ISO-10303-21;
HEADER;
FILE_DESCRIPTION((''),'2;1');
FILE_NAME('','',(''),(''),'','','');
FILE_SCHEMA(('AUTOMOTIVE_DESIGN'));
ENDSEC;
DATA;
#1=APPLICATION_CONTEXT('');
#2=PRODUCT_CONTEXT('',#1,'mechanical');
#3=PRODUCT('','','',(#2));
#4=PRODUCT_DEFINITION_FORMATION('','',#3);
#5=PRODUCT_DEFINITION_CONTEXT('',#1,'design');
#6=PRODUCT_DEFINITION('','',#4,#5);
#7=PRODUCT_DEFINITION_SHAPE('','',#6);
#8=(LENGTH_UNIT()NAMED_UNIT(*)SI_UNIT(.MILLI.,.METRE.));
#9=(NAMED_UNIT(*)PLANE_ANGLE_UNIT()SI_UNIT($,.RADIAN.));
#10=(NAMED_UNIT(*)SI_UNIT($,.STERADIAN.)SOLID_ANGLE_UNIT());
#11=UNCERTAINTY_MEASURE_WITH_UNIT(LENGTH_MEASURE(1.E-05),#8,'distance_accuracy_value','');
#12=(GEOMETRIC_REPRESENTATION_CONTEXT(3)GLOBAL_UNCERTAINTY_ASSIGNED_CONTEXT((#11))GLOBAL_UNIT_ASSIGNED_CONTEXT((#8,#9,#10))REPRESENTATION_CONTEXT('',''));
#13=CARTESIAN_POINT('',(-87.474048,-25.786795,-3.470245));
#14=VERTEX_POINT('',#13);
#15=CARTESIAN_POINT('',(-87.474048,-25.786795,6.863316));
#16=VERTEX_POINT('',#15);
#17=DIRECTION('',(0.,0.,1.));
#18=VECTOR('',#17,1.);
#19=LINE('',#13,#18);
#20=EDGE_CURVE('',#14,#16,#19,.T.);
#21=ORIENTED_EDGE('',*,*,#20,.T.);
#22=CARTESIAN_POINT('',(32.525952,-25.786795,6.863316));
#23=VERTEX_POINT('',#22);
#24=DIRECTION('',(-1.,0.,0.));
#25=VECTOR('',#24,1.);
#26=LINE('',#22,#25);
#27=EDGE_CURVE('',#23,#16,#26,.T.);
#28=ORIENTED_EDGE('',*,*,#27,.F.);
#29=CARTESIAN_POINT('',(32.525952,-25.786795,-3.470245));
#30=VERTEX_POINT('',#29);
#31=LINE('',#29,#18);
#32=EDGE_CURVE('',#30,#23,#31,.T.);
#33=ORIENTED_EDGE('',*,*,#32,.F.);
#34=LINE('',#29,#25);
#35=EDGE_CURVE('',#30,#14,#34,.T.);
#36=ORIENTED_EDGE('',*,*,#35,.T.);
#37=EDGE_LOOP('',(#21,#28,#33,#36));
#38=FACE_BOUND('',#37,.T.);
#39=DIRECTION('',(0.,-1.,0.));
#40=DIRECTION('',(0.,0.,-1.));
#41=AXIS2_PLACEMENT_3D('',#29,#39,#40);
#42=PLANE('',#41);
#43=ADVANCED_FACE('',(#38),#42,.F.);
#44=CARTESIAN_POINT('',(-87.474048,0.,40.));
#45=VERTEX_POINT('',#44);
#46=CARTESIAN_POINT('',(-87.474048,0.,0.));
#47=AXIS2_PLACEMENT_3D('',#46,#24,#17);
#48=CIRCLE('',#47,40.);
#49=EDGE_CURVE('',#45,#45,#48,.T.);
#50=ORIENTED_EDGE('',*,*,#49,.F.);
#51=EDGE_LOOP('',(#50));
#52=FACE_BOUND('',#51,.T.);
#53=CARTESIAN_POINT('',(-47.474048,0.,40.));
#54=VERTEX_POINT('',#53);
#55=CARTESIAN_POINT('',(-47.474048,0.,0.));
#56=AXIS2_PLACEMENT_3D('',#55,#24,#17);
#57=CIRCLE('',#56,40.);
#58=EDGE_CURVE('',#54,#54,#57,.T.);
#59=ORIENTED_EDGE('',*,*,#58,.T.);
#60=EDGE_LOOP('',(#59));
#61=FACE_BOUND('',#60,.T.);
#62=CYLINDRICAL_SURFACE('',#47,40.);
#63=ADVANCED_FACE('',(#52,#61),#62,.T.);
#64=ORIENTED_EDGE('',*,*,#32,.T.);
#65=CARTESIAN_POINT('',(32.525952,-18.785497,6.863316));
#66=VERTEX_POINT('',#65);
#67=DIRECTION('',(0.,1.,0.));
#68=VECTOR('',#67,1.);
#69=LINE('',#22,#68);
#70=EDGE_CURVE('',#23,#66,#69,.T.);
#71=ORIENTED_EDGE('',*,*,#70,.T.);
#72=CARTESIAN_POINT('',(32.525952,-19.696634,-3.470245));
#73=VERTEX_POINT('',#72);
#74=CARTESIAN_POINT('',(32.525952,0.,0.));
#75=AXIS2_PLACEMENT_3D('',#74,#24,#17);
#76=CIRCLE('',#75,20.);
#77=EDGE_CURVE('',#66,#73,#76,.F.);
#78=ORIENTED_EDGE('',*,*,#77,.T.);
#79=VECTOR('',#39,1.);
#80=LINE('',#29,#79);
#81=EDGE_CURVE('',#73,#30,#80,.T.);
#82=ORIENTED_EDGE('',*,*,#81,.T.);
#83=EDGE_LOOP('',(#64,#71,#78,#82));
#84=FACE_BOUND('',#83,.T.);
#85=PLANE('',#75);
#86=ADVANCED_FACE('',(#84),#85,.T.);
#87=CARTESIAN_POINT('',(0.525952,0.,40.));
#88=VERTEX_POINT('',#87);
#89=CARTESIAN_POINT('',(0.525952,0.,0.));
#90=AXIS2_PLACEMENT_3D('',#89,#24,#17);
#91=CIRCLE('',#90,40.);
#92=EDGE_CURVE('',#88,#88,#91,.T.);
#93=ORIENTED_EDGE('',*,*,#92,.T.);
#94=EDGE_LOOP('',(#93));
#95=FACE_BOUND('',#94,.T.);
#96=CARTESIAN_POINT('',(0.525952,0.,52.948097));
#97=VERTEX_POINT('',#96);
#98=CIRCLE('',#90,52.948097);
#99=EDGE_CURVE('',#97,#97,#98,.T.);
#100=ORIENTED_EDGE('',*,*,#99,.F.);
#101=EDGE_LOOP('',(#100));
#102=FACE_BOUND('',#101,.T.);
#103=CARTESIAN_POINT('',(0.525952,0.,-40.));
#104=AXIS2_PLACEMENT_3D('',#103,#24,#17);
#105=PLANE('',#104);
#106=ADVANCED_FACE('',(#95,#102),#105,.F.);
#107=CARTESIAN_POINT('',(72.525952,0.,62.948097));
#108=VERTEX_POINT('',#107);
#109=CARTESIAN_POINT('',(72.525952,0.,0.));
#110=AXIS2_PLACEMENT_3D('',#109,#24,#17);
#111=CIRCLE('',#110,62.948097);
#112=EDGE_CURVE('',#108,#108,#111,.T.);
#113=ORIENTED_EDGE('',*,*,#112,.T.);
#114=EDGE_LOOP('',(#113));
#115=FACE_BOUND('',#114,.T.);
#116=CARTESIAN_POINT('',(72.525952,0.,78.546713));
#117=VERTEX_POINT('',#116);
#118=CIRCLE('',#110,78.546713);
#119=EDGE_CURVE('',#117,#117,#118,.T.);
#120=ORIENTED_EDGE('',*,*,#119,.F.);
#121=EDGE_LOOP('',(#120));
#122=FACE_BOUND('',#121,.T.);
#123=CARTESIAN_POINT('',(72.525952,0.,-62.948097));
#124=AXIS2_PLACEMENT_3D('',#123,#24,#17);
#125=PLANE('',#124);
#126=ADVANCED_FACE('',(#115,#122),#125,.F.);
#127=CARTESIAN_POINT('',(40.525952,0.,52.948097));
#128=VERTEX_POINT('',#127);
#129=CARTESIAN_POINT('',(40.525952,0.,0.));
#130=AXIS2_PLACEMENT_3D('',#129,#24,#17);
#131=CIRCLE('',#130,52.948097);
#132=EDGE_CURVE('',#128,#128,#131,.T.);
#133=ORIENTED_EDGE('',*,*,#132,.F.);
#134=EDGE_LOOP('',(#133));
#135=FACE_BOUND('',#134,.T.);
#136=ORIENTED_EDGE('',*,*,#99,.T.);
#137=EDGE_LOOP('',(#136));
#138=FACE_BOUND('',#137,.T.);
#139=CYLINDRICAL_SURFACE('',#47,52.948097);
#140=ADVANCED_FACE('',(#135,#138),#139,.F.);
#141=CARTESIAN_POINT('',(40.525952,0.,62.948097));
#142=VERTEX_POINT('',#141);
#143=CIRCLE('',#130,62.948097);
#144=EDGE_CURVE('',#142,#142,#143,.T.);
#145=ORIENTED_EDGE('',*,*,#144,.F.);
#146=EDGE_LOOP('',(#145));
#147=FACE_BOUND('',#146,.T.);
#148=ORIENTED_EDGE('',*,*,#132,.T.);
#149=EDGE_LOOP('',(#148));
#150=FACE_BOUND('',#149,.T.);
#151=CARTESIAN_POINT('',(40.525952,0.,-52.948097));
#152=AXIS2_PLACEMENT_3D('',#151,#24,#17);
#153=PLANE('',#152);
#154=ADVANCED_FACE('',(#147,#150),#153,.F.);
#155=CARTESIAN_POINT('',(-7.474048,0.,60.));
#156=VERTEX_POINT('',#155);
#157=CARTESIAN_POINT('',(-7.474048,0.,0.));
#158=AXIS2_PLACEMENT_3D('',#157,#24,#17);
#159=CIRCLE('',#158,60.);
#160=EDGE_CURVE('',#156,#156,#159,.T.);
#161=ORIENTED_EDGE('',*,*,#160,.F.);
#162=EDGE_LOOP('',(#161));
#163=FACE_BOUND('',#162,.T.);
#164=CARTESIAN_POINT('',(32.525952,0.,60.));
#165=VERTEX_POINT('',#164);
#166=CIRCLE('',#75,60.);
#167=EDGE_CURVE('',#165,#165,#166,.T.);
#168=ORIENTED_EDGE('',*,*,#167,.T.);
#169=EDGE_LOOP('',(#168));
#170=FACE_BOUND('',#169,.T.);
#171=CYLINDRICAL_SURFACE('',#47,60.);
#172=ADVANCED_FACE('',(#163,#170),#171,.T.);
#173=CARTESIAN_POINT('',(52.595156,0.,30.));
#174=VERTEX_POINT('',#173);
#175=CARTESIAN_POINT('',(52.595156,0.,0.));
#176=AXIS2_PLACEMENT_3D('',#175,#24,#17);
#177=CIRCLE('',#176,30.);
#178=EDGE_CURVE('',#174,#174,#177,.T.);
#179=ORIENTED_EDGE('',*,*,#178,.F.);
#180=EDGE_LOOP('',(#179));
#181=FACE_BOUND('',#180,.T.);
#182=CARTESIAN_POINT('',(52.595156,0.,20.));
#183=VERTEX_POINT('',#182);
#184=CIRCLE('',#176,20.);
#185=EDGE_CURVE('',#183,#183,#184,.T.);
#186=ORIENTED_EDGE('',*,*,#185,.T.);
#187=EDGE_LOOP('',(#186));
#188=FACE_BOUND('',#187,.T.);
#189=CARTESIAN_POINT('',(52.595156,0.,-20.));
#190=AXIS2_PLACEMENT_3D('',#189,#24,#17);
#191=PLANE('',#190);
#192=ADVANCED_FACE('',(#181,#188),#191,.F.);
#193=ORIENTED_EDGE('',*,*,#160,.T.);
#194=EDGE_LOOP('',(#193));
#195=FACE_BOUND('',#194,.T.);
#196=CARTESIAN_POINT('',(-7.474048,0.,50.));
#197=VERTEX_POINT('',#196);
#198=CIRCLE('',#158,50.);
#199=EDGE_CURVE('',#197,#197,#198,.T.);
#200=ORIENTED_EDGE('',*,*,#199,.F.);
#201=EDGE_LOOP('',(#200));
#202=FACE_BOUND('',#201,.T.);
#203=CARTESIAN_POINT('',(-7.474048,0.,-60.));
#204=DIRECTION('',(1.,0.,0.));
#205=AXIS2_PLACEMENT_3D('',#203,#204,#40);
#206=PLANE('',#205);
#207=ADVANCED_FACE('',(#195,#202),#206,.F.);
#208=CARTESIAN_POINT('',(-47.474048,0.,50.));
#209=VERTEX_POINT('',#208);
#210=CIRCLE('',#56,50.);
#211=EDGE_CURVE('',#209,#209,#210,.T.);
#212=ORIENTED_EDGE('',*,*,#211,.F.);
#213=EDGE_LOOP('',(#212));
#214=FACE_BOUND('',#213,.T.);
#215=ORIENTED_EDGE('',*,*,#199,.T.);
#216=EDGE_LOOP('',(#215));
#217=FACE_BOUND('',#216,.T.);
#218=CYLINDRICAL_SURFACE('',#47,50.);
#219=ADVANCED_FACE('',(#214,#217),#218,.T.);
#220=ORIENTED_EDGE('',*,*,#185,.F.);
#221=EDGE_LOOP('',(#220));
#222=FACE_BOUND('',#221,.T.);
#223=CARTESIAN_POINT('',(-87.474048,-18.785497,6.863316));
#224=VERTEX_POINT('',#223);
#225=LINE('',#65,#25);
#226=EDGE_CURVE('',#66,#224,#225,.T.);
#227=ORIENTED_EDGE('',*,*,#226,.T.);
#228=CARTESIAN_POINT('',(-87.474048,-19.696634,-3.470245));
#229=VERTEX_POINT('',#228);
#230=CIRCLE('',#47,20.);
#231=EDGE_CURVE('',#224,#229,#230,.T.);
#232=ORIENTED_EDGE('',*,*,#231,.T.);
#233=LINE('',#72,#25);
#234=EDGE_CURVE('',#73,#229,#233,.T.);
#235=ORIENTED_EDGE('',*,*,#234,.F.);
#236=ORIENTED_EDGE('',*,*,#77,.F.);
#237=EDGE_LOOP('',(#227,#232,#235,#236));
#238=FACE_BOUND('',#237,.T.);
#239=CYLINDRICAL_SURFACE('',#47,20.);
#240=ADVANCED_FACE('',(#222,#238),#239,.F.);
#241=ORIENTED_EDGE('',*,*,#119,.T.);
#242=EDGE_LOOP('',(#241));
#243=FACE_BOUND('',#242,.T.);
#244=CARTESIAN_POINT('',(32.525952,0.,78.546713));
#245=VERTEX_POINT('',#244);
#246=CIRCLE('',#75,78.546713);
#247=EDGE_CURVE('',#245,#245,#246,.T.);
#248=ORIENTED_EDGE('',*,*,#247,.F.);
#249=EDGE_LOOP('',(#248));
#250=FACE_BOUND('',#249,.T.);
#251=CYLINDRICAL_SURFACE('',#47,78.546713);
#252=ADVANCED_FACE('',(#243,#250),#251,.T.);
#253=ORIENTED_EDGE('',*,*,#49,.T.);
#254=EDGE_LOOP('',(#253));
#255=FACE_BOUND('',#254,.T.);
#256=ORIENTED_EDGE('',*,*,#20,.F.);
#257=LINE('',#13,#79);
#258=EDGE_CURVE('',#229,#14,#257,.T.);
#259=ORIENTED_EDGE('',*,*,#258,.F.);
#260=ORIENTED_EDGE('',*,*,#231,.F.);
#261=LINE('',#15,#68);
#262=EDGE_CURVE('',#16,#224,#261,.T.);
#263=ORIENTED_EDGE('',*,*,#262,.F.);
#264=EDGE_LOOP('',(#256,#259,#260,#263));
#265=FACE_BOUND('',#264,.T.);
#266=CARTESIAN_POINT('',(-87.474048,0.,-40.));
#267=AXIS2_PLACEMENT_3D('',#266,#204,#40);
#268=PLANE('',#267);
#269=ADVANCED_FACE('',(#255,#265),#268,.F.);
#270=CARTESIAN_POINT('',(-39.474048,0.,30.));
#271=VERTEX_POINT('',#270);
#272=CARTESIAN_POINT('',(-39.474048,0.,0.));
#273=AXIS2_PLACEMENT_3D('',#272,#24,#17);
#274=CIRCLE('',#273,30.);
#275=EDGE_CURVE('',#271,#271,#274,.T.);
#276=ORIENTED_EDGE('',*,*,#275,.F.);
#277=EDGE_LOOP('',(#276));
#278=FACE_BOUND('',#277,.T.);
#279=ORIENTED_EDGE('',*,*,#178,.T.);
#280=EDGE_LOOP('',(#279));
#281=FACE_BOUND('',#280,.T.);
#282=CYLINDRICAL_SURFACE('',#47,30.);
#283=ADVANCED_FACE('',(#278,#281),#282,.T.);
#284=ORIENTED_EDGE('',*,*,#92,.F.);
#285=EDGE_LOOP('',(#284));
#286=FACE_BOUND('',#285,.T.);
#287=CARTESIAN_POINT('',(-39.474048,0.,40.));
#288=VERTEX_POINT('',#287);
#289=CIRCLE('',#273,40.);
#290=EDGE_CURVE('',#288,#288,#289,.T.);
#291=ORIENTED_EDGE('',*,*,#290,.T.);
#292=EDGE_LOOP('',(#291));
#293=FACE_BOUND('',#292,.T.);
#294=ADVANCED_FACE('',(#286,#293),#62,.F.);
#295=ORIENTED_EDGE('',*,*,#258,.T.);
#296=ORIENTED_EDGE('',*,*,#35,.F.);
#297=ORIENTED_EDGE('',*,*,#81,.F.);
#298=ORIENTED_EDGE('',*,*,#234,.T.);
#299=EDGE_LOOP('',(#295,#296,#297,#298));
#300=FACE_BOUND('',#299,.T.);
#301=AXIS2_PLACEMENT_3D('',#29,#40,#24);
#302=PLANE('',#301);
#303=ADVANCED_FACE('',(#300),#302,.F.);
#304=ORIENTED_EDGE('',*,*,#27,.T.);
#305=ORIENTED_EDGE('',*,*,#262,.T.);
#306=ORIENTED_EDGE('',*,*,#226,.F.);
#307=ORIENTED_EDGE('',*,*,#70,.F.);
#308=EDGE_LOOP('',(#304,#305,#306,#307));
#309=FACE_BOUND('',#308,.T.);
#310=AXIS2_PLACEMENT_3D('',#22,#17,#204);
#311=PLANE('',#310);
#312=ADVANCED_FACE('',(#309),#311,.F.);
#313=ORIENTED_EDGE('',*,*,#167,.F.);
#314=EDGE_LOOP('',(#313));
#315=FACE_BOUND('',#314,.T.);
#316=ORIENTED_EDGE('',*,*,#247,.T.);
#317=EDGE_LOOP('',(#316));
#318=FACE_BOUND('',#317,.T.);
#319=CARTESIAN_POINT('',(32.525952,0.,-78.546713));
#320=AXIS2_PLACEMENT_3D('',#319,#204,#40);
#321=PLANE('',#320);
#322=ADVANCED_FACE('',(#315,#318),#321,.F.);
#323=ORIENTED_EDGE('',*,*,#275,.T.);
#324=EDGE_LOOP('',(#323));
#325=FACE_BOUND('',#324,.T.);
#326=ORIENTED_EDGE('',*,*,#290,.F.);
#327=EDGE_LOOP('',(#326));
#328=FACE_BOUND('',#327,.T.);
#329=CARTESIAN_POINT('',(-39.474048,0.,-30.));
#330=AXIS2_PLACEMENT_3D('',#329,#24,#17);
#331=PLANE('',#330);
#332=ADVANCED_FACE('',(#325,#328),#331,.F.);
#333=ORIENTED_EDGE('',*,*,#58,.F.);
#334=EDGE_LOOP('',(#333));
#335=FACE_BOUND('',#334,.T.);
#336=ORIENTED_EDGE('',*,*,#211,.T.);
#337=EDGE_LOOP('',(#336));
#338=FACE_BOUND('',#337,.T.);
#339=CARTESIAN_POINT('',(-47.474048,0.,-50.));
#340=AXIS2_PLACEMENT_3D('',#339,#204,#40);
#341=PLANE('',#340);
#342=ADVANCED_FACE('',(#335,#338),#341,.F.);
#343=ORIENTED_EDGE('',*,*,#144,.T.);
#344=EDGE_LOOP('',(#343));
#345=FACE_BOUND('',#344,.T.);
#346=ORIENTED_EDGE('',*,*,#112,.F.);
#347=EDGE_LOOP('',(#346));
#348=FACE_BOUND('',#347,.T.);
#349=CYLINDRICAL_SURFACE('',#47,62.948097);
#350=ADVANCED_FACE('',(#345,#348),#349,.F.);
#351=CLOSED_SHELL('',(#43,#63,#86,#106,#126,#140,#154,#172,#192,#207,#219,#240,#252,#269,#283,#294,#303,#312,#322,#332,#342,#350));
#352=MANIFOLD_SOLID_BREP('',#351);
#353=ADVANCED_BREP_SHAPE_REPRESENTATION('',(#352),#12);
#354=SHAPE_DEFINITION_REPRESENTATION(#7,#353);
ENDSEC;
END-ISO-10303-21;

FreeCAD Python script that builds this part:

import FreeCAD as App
import Part
import Sketcher
from FreeCAD import Vector
Q = App.Units.Quantity

doc = App.newDocument("Part")
params = doc.addObject("Spreadsheet::Sheet", "Params")
for row, (alias, value) in enumerate([
    ("sketch1_width", "40 mm"),
    ("sketch1_width2", "32 mm"),
    ("sketch1_height", "10 mm"),
    ("revolution_angle", "360 deg"),
    ("pocket1_length", "120 mm"),
], start=1):
    params.set(f"A{row}", alias)
    params.set(f"B{row}", "=" + value)
    params.setAlias(f"B{row}", alias)

body = doc.addObject("PartDesign::Body", "Body")

sketch1 = body.newObject("Sketcher::SketchObject", "Sketch")
sketch1.AttachmentSupport = (doc.getObject("XZ_Plane"), [""])
sketch1.MapMode = "FlatFace"
sketch1.addGeometry(Part.LineSegment(Vector(-87, -20, 0), Vector(53, -20, 0)), False)
sketch1.addGeometry(Part.LineSegment(Vector(53, -20, 0), Vector(53, -30, 0)), False)
sketch1.addGeometry(Part.LineSegment(Vector(53, -30, 0), Vector(-39, -30, 0)), False)
sketch1.addGeometry(Part.LineSegment(Vector(-39, -30, 0), Vector(-39, -40, 0)), False)
sketch1.addGeometry(Part.LineSegment(Vector(-39, -40, 0), Vector(1, -40, 0)), False)
sketch1.addGeometry(Part.LineSegment(Vector(1, -40, 0), Vector(1, -53, 0)), False)
sketch1.addGeometry(Part.LineSegment(Vector(1, -53, 0), Vector(41, -53, 0)), False)
sketch1.addGeometry(Part.LineSegment(Vector(41, -53, 0), Vector(41, -63, 0)), False)
sketch1.addGeometry(Part.LineSegment(Vector(41, -63, 0), Vector(73, -63, 0)), False)
sketch1.addGeometry(Part.LineSegment(Vector(73, -63, 0), Vector(73, -79, 0)), False)
sketch1.addGeometry(Part.LineSegment(Vector(73, -79, 0), Vector(33, -79, 0)), False)
sketch1.addGeometry(Part.LineSegment(Vector(33, -79, 0), Vector(33, -60, 0)), False)
sketch1.addGeometry(Part.LineSegment(Vector(33, -60, 0), Vector(-7, -60, 0)), False)
sketch1.addGeometry(Part.LineSegment(Vector(-7, -60, 0), Vector(-7, -50, 0)), False)
sketch1.addGeometry(Part.LineSegment(Vector(-7, -50, 0), Vector(-47, -50, 0)), False)
sketch1.addGeometry(Part.LineSegment(Vector(-47, -50, 0), Vector(-47, -40, 0)), False)
sketch1.addGeometry(Part.LineSegment(Vector(-47, -40, 0), Vector(-87, -40, 0)), False)
sketch1.addGeometry(Part.LineSegment(Vector(-87, -40, 0), Vector(-87, -20, 0)), False)
sketch1.addConstraint(Sketcher.Constraint("Coincident", 0, 2, 1, 1))
sketch1.addConstraint(Sketcher.Constraint("Coincident", 1, 2, 2, 1))
sketch1.addConstraint(Sketcher.Constraint("Coincident", 2, 2, 3, 1))
sketch1.addConstraint(Sketcher.Constraint("Coincident", 3, 2, 4, 1))
sketch1.addConstraint(Sketcher.Constraint("Coincident", 4, 2, 5, 1))
sketch1.addConstraint(Sketcher.Constraint("Coincident", 5, 2, 6, 1))
sketch1.addConstraint(Sketcher.Constraint("Coincident", 6, 2, 7, 1))
sketch1.addConstraint(Sketcher.Constraint("Coincident", 7, 2, 8, 1))
sketch1.addConstraint(Sketcher.Constraint("Coincident", 8, 2, 9, 1))
sketch1.addConstraint(Sketcher.Constraint("Coincident", 9, 2, 10, 1))
sketch1.addConstraint(Sketcher.Constraint("Coincident", 10, 2, 11, 1))
sketch1.addConstraint(Sketcher.Constraint("Coincident", 11, 2, 12, 1))
sketch1.addConstraint(Sketcher.Constraint("Coincident", 12, 2, 13, 1))
sketch1.addConstraint(Sketcher.Constraint("Coincident", 13, 2, 14, 1))
sketch1.addConstraint(Sketcher.Constraint("Coincident", 14, 2, 15, 1))
sketch1.addConstraint(Sketcher.Constraint("Coincident", 15, 2, 16, 1))
sketch1.addConstraint(Sketcher.Constraint("Coincident", 16, 2, 17, 1))
sketch1.addConstraint(Sketcher.Constraint("Coincident", 17, 2, 0, 1))
sketch1.addConstraint(Sketcher.Constraint("Horizontal", 0))
sketch1.addConstraint(Sketcher.Constraint("Vertical", 1))
sketch1.addConstraint(Sketcher.Constraint("Horizontal", 2))
sketch1.addConstraint(Sketcher.Constraint("Vertical", 3))
sketch1.addConstraint(Sketcher.Constraint("Horizontal", 4))
sketch1.addConstraint(Sketcher.Constraint("Vertical", 5))
sketch1.addConstraint(Sketcher.Constraint("Horizontal", 6))
sketch1.addConstraint(Sketcher.Constraint("Vertical", 7))
sketch1.addConstraint(Sketcher.Constraint("Horizontal", 8))
sketch1.addConstraint(Sketcher.Constraint("Vertical", 9))
sketch1.addConstraint(Sketcher.Constraint("Horizontal", 10))
sketch1.addConstraint(Sketcher.Constraint("Vertical", 11))
sketch1.addConstraint(Sketcher.Constraint("Horizontal", 12))
sketch1.addConstraint(Sketcher.Constraint("Vertical", 13))
sketch1.addConstraint(Sketcher.Constraint("Horizontal", 14))
sketch1.addConstraint(Sketcher.Constraint("Vertical", 15))
sketch1.addConstraint(Sketcher.Constraint("Horizontal", 16))
sketch1.addConstraint(Sketcher.Constraint("Vertical", 17))
sketch1.addConstraint(Sketcher.Constraint("Horizontal", 4, 2, 15, 2))
sketch1.addConstraint(Sketcher.Constraint("Equal", 4, 6))
sketch1.addConstraint(Sketcher.Constraint("Equal", 6, 10))
sketch1.addConstraint(Sketcher.Constraint("Equal", 10, 12))
sketch1.addConstraint(Sketcher.Constraint("Equal", 12, 14))
sketch1.addConstraint(Sketcher.Constraint("Equal", 14, 16))
sketch1.addConstraint(Sketcher.Constraint("Equal", 1, 3))
sketch1.addConstraint(Sketcher.Constraint("Equal", 3, 7))
sketch1.addConstraint(Sketcher.Constraint("Equal", 7, 13))
sketch1.addConstraint(Sketcher.Constraint("Equal", 13, 15))
sketch1.addConstraint(Sketcher.Constraint("DistanceX", 4, 1, 4, 2, Q("40 mm")))
sketch1.addConstraint(Sketcher.Constraint("DistanceX", 8, 1, 8, 2, Q("32 mm")))
sketch1.addConstraint(Sketcher.Constraint("DistanceY", 1, 2, 1, 1, Q("10 mm")))
sketch1.addConstraint(Sketcher.Constraint("DistanceY", 0, 2, -1, 1, Q("20 mm")))
sketch1.addConstraint(Sketcher.Constraint("DistanceX", 0, 1, 0, 2, Q("140.069204 mm")))
sketch1.addConstraint(Sketcher.Constraint("DistanceY", 5, 2, 5, 1, Q("12.948097 mm")))
sketch1.addConstraint(Sketcher.Constraint("DistanceY", 9, 2, 9, 1, Q("15.598616 mm")))
sketch1.addConstraint(Sketcher.Constraint("DistanceX", 2, 2, -1, 1, Q("39.474048 mm")))
sketch1.setExpression("Constraints[46]", "Params.sketch1_width")
sketch1.setExpression("Constraints[47]", "Params.sketch1_width2")
sketch1.setExpression("Constraints[48]", "Params.sketch1_height")
revolution = body.newObject("PartDesign::Revolution", "Revolution")
revolution.Profile = sketch1
revolution.ReferenceAxis = (sketch1, ["H_Axis"])
revolution.setExpression("Angle", "Params.revolution_angle")

sketch2 = body.newObject("Sketcher::SketchObject", "Sketch001")
sketch2.AttachmentSupport = (doc.getObject("YZ_Plane"), [""])
sketch2.MapMode = "FlatFace"
sketch2.AttachmentOffset = App.Placement(Vector(0, 0, -87.474048), App.Rotation())
sketch2.addGeometry(Part.LineSegment(Vector(-20, -3, 0), Vector(-26, -3, 0)), False)
sketch2.addGeometry(Part.LineSegment(Vector(-26, -3, 0), Vector(-26, 7, 0)), False)
sketch2.addGeometry(Part.LineSegment(Vector(-26, 7, 0), Vector(-19, 7, 0)), False)
sketch2.addGeometry(Part.LineSegment(Vector(-19, 7, 0), Vector(-20, -3, 0)), False)
sketch2.addConstraint(Sketcher.Constraint("Coincident", 0, 2, 1, 1))
sketch2.addConstraint(Sketcher.Constraint("Coincident", 1, 2, 2, 1))
sketch2.addConstraint(Sketcher.Constraint("Coincident", 2, 2, 3, 1))
sketch2.addConstraint(Sketcher.Constraint("Coincident", 3, 2, 0, 1))
sketch2.addConstraint(Sketcher.Constraint("Horizontal", 0))
sketch2.addConstraint(Sketcher.Constraint("Vertical", 1))
sketch2.addConstraint(Sketcher.Constraint("Horizontal", 2))
sketch2.addConstraint(Sketcher.Constraint("DistanceX", 2, 1, 2, 2, Q("7.001299 mm")))
sketch2.addConstraint(Sketcher.Constraint("DistanceX", 0, 2, 0, 1, Q("6.090161 mm")))
sketch2.addConstraint(Sketcher.Constraint("DistanceY", 1, 1, 1, 2, Q("10.333561 mm")))
sketch2.addConstraint(Sketcher.Constraint("DistanceX", 0, 2, -1, 1, Q("25.786795 mm")))
sketch2.addConstraint(Sketcher.Constraint("DistanceY", 0, 2, -1, 1, Q("3.470245 mm")))
pocket1 = body.newObject("PartDesign::Pocket", "Pocket")
pocket1.Profile = sketch2
pocket1.setExpression("Length", "Params.pocket1_length")
pocket1.Reversed = True

doc.recompute()
